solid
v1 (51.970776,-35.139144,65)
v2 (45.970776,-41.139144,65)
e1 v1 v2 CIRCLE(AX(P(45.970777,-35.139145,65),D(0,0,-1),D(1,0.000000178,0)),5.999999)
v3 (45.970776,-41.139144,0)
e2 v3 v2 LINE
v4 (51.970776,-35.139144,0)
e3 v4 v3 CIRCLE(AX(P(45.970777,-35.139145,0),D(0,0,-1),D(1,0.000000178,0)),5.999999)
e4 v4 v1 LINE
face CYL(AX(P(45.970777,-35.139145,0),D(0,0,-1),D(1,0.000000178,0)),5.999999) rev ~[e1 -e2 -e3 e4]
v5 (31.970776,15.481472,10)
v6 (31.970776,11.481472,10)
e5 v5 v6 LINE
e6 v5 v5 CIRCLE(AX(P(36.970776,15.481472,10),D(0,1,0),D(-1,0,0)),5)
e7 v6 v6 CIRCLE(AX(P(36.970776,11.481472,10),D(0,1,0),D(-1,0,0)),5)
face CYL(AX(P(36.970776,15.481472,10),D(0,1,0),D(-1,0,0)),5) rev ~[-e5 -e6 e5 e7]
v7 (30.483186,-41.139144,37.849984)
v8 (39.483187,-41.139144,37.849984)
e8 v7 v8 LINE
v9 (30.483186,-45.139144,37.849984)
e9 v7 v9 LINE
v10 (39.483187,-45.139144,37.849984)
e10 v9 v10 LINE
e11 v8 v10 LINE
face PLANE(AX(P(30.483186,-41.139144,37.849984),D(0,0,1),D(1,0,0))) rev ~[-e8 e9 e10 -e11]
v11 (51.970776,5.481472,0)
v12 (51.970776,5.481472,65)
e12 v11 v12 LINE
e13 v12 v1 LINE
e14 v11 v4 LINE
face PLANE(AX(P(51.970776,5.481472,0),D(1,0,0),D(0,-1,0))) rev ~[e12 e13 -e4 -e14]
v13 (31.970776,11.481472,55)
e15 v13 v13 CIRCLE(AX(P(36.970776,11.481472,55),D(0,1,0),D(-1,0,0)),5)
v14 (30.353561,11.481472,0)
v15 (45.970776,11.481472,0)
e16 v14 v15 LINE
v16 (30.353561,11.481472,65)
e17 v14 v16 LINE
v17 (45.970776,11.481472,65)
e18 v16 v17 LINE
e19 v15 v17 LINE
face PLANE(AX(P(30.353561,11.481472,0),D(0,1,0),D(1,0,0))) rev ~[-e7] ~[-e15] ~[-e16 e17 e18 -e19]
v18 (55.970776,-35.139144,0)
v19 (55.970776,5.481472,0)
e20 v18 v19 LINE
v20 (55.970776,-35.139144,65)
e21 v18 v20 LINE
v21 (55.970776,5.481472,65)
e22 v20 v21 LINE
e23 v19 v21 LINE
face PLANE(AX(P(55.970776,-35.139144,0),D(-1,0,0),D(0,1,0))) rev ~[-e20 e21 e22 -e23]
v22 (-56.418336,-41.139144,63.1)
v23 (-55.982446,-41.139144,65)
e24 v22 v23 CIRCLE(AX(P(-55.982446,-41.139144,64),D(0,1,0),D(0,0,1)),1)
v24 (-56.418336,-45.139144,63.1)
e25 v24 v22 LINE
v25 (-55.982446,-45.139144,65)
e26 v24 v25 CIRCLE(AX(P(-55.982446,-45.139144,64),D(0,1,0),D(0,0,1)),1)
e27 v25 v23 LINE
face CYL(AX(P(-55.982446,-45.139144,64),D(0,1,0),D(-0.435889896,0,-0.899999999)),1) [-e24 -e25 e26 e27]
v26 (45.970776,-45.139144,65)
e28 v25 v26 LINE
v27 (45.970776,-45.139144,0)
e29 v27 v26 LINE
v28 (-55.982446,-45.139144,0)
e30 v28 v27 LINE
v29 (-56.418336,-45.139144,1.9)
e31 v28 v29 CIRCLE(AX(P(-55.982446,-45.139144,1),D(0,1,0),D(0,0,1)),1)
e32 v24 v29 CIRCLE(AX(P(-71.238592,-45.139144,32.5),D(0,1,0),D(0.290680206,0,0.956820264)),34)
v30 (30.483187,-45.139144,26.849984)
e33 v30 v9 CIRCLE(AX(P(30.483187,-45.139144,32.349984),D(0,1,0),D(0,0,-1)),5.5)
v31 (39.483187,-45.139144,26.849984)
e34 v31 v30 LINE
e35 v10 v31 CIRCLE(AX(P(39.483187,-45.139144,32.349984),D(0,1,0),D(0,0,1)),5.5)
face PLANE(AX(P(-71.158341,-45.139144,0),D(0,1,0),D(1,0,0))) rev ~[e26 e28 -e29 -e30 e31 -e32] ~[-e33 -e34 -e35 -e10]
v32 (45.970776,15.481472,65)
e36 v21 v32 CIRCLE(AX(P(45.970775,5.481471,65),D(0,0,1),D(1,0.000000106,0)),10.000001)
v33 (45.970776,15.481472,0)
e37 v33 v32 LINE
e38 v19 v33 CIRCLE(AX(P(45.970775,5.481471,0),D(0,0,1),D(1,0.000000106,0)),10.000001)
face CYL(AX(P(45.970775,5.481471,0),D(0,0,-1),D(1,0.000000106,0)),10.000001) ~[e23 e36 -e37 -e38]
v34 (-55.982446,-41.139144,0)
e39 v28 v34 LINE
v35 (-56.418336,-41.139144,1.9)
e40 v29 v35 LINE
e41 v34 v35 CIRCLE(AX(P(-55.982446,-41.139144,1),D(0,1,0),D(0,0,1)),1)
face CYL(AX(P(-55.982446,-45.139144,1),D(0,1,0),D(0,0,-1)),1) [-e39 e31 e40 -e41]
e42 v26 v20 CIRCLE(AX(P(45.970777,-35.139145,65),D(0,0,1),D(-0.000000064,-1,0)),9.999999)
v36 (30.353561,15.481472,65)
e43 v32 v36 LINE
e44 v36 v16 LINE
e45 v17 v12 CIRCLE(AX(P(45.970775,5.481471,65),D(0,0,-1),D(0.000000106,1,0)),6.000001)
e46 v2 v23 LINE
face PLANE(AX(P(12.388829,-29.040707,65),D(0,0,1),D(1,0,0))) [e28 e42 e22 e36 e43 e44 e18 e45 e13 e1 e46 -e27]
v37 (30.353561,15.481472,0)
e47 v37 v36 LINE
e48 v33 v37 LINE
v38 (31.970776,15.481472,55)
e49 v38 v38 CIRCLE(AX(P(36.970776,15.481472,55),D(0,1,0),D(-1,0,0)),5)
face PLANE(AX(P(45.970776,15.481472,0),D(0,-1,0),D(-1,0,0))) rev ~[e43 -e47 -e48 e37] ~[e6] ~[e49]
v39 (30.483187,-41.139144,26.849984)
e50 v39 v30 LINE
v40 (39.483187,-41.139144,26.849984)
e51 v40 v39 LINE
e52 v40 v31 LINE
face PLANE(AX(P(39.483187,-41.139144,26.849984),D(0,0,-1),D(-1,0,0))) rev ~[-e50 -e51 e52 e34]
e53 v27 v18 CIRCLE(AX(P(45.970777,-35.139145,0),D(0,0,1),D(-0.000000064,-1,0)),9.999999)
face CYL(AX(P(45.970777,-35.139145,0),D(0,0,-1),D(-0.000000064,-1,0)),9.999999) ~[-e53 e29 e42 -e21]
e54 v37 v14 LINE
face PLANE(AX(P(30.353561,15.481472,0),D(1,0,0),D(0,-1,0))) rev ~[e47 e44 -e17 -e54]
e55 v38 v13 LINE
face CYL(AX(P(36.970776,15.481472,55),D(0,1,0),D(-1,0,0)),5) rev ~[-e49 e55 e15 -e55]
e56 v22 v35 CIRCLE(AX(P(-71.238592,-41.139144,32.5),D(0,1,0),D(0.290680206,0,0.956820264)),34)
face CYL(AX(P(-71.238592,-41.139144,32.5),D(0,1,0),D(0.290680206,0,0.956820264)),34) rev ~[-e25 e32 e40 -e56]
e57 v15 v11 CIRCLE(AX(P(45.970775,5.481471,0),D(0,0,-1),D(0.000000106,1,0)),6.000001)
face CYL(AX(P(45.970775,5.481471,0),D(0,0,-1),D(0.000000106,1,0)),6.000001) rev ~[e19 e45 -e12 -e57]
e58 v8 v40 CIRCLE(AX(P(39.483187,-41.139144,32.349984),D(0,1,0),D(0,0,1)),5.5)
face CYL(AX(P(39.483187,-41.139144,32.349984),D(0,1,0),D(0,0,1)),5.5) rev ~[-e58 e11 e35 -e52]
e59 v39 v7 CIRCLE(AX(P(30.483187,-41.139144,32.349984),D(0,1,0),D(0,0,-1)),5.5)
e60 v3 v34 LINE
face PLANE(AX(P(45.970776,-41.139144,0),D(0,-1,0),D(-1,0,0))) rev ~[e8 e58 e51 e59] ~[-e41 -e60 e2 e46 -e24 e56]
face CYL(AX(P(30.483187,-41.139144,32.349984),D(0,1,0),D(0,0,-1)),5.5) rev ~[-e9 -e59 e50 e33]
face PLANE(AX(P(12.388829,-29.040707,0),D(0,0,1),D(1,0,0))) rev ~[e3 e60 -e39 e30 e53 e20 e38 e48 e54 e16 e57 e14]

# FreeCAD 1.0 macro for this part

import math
import FreeCAD as App
import Part
import Sketcher


def edges_at(feature, points):
    """Names of the edges that pass closest to the given points."""
    edges = feature.Shape.Edges
    near = lambda p: min(range(len(edges)), key=lambda i: edges[i].distToShape(Part.Vertex(*p))[0])
    return sorted({f"Edge{near(p) + 1}" for p in points})

doc = App.newDocument("Part")
body = doc.addObject("PartDesign::Body", "Body")

# Sketch on XY plane
sketch1 = body.newObject("Sketcher::SketchObject", "Sketch")
sketch1.AttachmentSupport = (doc.getObject("XY_Plane"), [""])
sketch1.MapMode = "FlatFace"
sketch1.addGeometry(Part.LineSegment(App.Vector(-71.2, -41.1, 0), App.Vector(-71.2, -45.1, 0)), False)
sketch1.addGeometry(Part.LineSegment(App.Vector(-71.2, -45.1, 0), App.Vector(46, -45.1, 0)), False)
sketch1.addGeometry(Part.ArcOfCircle(Part.Circle(App.Vector(46, -35.1, 0), App.Vector(0, 0, 1), 10), math.radians(-90), math.radians(0)), False)
sketch1.addGeometry(Part.LineSegment(App.Vector(56, -35.1, 0), App.Vector(56, 5.5, 0)), False)
sketch1.addGeometry(Part.ArcOfCircle(Part.Circle(App.Vector(46, 5.5, 0), App.Vector(0, 0, 1), 10), math.radians(0), math.radians(90)), False)
sketch1.addGeometry(Part.LineSegment(App.Vector(46, 15.5, 0), App.Vector(30.4, 15.5, 0)), False)
sketch1.addGeometry(Part.LineSegment(App.Vector(30.4, 15.5, 0), App.Vector(30.4, 11.5, 0)), False)
sketch1.addGeometry(Part.LineSegment(App.Vector(30.4, 11.5, 0), App.Vector(46, 11.5, 0)), False)
sketch1.addGeometry(Part.ArcOfCircle(Part.Circle(App.Vector(46, 5.5, 0), App.Vector(0, 0, 1), 6), math.radians(0), math.radians(90)), False)
sketch1.addGeometry(Part.LineSegment(App.Vector(52, 5.5, 0), App.Vector(52, -35.1, 0)), False)
sketch1.addGeometry(Part.ArcOfCircle(Part.Circle(App.Vector(46, -35.1, 0), App.Vector(0, 0, 1), 6), math.radians(-90), math.radians(0)), False)
sketch1.addGeometry(Part.LineSegment(App.Vector(46, -41.1, 0), App.Vector(-71.2, -41.1, 0)), False)
sketch1.addConstraint(Sketcher.Constraint("Coincident", 0, 2, 1, 1))
sketch1.addConstraint(Sketcher.Constraint("Tangent", 1, 2, 2, 1))
sketch1.addConstraint(Sketcher.Constraint("Tangent", 2, 2, 3, 1))
sketch1.addConstraint(Sketcher.Constraint("Tangent", 3, 2, 4, 1))
sketch1.addConstraint(Sketcher.Constraint("Tangent", 4, 2, 5, 1))
sketch1.addConstraint(Sketcher.Constraint("Coincident", 5, 2, 6, 1))
sketch1.addConstraint(Sketcher.Constraint("Coincident", 6, 2, 7, 1))
sketch1.addConstraint(Sketcher.Constraint("Tangent", 7, 2, 8, 2))
sketch1.addConstraint(Sketcher.Constraint("Tangent", 8, 1, 9, 1))
sketch1.addConstraint(Sketcher.Constraint("Tangent", 9, 2, 10, 2))
sketch1.addConstraint(Sketcher.Constraint("Tangent", 10, 1, 11, 1))
sketch1.addConstraint(Sketcher.Constraint("Coincident", 11, 2, 0, 1))
sketch1.addConstraint(Sketcher.Constraint("Vertical", 0))
sketch1.addConstraint(Sketcher.Constraint("Horizontal", 1))
sketch1.addConstraint(Sketcher.Constraint("Vertical", 3))
sketch1.addConstraint(Sketcher.Constraint("Horizontal", 5))
sketch1.addConstraint(Sketcher.Constraint("Vertical", 6))
sketch1.addConstraint(Sketcher.Constraint("Horizontal", 7))
sketch1.addConstraint(Sketcher.Constraint("Vertical", 9))
sketch1.addConstraint(Sketcher.Constraint("Horizontal", 11))
sketch1.addConstraint(Sketcher.Constraint("Coincident", 8, 3, 4, 3))
sketch1.addConstraint(Sketcher.Constraint("Coincident", 10, 3, 2, 3))
sketch1.addConstraint(Sketcher.Constraint("Equal", 2, 4))
sketch1.addConstraint(Sketcher.Constraint("Radius", 2, 9.999999))
sketch1.addConstraint(Sketcher.Constraint("Radius", 8, 6.000001))
sketch1.addConstraint(Sketcher.Constraint("DistanceX", 11, 2, 6, 2, 101.511902))
sketch1.addConstraint(Sketcher.Constraint("DistanceX", 1, 1, 1, 2, 117.129117))
sketch1.addConstraint(Sketcher.Constraint("DistanceY", 3, 1, 3, 2, 40.620616))
sketch1.addConstraint(Sketcher.Constraint("DistanceY", -1, 1, 4, 3, 5.481471))
sketch1.addConstraint(Sketcher.Constraint("DistanceX", 0, 2, -1, 1, 71.158341))
pad1 = body.newObject("PartDesign::Pad", "Pad")
pad1.Profile = sketch1
pad1.Length = 65

# Sketch on XZ plane
sketch2 = body.newObject("Sketcher::SketchObject", "Sketch001")
sketch2.AttachmentSupport = (doc.getObject("XZ_Plane"), [""])
sketch2.MapMode = "FlatFace"
sketch2.AttachmentOffset = App.Placement(App.Vector(0, 0, -15.481472), App.Rotation())
sketch2.addGeometry(Part.Circle(App.Vector(37, 10, 0), App.Vector(0, 0, 1), 5), False)
sketch2.addGeometry(Part.Circle(App.Vector(37, 55, 0), App.Vector(0, 0, 1), 5), False)
sketch2.addConstraint(Sketcher.Constraint("Equal", 0, 1))
sketch2.addConstraint(Sketcher.Constraint("Vertical", 0, 3, 1, 3))
sketch2.addConstraint(Sketcher.Constraint("Diameter", 0, 10.0))
sketch2.addConstraint(Sketcher.Constraint("DistanceY", -1, 1, 0, 3, 10.0))
sketch2.addConstraint(Sketcher.Constraint("DistanceY", -1, 1, 1, 3, 55.0))
sketch2.addConstraint(Sketcher.Constraint("DistanceX", -1, 1, 0, 3, 36.970776))
pocket1 = body.newObject("PartDesign::Pocket", "Pocket")
pocket1.Profile = sketch2
pocket1.Length = 4
pocket1.Reversed = True

# Sketch on XZ plane
sketch3 = body.newObject("Sketcher::SketchObject", "Sketch002")
sketch3.AttachmentSupport = (doc.getObject("XZ_Plane"), [""])
sketch3.MapMode = "FlatFace"
sketch3.AttachmentOffset = App.Placement(App.Vector(0, 0, 41.139144), App.Rotation())
sketch3.addGeometry(Part.LineSegment(App.Vector(-79, 65, 0), App.Vector(-61, 65, 0)), False)
sketch3.addGeometry(Part.ArcOfCircle(Part.Circle(App.Vector(-71, 32, 0), App.Vector(0, 0, 1), 34), math.radians(-73), math.radians(73)), False)
sketch3.addGeometry(Part.LineSegment(App.Vector(-61, 0, 0), App.Vector(-79, 0, 0)), False)
sketch3.addGeometry(Part.LineSegment(App.Vector(-79, 0, 0), App.Vector(-79, 65, 0)), False)
sketch3.addConstraint(Sketcher.Constraint("Coincident", 0, 2, 1, 2))
sketch3.addConstraint(Sketcher.Constraint("Coincident", 1, 1, 2, 1))
sketch3.addConstraint(Sketcher.Constraint("Coincident", 2, 2, 3, 1))
sketch3.addConstraint(Sketcher.Constraint("Coincident", 3, 2, 0, 1))
sketch3.addConstraint(Sketcher.Constraint("Horizontal", 0))
sketch3.addConstraint(Sketcher.Constraint("Horizontal", 2))
sketch3.addConstraint(Sketcher.Constraint("Vertical", 3))
sketch3.addConstraint(Sketcher.Constraint("Vertical", 0, 2, 1, 1))
sketch3.addConstraint(Sketcher.Constraint("Radius", 1, 34.0))
sketch3.addConstraint(Sketcher.Constraint("DistanceY", -1, 1, 1, 3, 32.5))
sketch3.addConstraint(Sketcher.Constraint("DistanceY", 3, 1, 3, 2, 65.063778))
sketch3.addConstraint(Sketcher.Constraint("DistanceX", 0, 1, 0, 2, 17.556368))
sketch3.addConstraint(Sketcher.Constraint("DistanceX", 1, 3, -1, 1, 71.238592))
pocket2 = body.newObject("PartDesign::Pocket", "Pocket001")
pocket2.Profile = sketch3
pocket2.Length = 25
pocket2.Reversed = True
doc.recompute()

fillet = body.newObject("PartDesign::Fillet", "Fillet")
fillet.Base = (pocket2, edges_at(pocket2, [(-61.251, -43.139, 65), (-61.251, -43.139, 0)]))
fillet.Radius = 1

# Sketch on XZ plane
sketch4 = body.newObject("Sketcher::SketchObject", "Sketch003")
sketch4.AttachmentSupport = (doc.getObject("XZ_Plane"), [""])
sketch4.MapMode = "FlatFace"
sketch4.AttachmentOffset = App.Placement(App.Vector(0, 0, 41.139144), App.Rotation())
sketch4.addGeometry(Part.LineSegment(App.Vector(39, 27, 0), App.Vector(30, 27, 0)), False)
sketch4.addGeometry(Part.ArcOfCircle(Part.Circle(App.Vector(30, 32, 0), App.Vector(0, 0, 1), 6), math.radians(90), math.radians(270)), False)
sketch4.addGeometry(Part.LineSegment(App.Vector(30, 38, 0), App.Vector(39, 38, 0)), False)
sketch4.addGeometry(Part.ArcOfCircle(Part.Circle(App.Vector(39, 32, 0), App.Vector(0, 0, 1), 6), math.radians(-90), math.radians(90)), False)
sketch4.addConstraint(Sketcher.Constraint("Tangent", 0, 2, 1, 2))
sketch4.addConstraint(Sketcher.Constraint("Tangent", 1, 1, 2, 1))
sketch4.addConstraint(Sketcher.Constraint("Tangent", 2, 2, 3, 2))
sketch4.addConstraint(Sketcher.Constraint("Tangent", 3, 1, 0, 1))
sketch4.addConstraint(Sketcher.Constraint("Horizontal", 0))
sketch4.addConstraint(Sketcher.Constraint("Horizontal", 2))
sketch4.addConstraint(Sketcher.Constraint("Radius", 1, 5.5))
sketch4.addConstraint(Sketcher.Constraint("DistanceX", 0, 2, 0, 1, 9.0))
sketch4.addConstraint(Sketcher.Constraint("DistanceX", -1, 1, 1, 3, 30.483187))
sketch4.addConstraint(Sketcher.Constraint("DistanceY", -1, 1, 1, 3, 32.349984))
pocket3 = body.newObject("PartDesign::Pocket", "Pocket002")
pocket3.Profile = sketch4
pocket3.Type = "ThroughAll"
pocket3.Reversed = True

doc.recompute()
